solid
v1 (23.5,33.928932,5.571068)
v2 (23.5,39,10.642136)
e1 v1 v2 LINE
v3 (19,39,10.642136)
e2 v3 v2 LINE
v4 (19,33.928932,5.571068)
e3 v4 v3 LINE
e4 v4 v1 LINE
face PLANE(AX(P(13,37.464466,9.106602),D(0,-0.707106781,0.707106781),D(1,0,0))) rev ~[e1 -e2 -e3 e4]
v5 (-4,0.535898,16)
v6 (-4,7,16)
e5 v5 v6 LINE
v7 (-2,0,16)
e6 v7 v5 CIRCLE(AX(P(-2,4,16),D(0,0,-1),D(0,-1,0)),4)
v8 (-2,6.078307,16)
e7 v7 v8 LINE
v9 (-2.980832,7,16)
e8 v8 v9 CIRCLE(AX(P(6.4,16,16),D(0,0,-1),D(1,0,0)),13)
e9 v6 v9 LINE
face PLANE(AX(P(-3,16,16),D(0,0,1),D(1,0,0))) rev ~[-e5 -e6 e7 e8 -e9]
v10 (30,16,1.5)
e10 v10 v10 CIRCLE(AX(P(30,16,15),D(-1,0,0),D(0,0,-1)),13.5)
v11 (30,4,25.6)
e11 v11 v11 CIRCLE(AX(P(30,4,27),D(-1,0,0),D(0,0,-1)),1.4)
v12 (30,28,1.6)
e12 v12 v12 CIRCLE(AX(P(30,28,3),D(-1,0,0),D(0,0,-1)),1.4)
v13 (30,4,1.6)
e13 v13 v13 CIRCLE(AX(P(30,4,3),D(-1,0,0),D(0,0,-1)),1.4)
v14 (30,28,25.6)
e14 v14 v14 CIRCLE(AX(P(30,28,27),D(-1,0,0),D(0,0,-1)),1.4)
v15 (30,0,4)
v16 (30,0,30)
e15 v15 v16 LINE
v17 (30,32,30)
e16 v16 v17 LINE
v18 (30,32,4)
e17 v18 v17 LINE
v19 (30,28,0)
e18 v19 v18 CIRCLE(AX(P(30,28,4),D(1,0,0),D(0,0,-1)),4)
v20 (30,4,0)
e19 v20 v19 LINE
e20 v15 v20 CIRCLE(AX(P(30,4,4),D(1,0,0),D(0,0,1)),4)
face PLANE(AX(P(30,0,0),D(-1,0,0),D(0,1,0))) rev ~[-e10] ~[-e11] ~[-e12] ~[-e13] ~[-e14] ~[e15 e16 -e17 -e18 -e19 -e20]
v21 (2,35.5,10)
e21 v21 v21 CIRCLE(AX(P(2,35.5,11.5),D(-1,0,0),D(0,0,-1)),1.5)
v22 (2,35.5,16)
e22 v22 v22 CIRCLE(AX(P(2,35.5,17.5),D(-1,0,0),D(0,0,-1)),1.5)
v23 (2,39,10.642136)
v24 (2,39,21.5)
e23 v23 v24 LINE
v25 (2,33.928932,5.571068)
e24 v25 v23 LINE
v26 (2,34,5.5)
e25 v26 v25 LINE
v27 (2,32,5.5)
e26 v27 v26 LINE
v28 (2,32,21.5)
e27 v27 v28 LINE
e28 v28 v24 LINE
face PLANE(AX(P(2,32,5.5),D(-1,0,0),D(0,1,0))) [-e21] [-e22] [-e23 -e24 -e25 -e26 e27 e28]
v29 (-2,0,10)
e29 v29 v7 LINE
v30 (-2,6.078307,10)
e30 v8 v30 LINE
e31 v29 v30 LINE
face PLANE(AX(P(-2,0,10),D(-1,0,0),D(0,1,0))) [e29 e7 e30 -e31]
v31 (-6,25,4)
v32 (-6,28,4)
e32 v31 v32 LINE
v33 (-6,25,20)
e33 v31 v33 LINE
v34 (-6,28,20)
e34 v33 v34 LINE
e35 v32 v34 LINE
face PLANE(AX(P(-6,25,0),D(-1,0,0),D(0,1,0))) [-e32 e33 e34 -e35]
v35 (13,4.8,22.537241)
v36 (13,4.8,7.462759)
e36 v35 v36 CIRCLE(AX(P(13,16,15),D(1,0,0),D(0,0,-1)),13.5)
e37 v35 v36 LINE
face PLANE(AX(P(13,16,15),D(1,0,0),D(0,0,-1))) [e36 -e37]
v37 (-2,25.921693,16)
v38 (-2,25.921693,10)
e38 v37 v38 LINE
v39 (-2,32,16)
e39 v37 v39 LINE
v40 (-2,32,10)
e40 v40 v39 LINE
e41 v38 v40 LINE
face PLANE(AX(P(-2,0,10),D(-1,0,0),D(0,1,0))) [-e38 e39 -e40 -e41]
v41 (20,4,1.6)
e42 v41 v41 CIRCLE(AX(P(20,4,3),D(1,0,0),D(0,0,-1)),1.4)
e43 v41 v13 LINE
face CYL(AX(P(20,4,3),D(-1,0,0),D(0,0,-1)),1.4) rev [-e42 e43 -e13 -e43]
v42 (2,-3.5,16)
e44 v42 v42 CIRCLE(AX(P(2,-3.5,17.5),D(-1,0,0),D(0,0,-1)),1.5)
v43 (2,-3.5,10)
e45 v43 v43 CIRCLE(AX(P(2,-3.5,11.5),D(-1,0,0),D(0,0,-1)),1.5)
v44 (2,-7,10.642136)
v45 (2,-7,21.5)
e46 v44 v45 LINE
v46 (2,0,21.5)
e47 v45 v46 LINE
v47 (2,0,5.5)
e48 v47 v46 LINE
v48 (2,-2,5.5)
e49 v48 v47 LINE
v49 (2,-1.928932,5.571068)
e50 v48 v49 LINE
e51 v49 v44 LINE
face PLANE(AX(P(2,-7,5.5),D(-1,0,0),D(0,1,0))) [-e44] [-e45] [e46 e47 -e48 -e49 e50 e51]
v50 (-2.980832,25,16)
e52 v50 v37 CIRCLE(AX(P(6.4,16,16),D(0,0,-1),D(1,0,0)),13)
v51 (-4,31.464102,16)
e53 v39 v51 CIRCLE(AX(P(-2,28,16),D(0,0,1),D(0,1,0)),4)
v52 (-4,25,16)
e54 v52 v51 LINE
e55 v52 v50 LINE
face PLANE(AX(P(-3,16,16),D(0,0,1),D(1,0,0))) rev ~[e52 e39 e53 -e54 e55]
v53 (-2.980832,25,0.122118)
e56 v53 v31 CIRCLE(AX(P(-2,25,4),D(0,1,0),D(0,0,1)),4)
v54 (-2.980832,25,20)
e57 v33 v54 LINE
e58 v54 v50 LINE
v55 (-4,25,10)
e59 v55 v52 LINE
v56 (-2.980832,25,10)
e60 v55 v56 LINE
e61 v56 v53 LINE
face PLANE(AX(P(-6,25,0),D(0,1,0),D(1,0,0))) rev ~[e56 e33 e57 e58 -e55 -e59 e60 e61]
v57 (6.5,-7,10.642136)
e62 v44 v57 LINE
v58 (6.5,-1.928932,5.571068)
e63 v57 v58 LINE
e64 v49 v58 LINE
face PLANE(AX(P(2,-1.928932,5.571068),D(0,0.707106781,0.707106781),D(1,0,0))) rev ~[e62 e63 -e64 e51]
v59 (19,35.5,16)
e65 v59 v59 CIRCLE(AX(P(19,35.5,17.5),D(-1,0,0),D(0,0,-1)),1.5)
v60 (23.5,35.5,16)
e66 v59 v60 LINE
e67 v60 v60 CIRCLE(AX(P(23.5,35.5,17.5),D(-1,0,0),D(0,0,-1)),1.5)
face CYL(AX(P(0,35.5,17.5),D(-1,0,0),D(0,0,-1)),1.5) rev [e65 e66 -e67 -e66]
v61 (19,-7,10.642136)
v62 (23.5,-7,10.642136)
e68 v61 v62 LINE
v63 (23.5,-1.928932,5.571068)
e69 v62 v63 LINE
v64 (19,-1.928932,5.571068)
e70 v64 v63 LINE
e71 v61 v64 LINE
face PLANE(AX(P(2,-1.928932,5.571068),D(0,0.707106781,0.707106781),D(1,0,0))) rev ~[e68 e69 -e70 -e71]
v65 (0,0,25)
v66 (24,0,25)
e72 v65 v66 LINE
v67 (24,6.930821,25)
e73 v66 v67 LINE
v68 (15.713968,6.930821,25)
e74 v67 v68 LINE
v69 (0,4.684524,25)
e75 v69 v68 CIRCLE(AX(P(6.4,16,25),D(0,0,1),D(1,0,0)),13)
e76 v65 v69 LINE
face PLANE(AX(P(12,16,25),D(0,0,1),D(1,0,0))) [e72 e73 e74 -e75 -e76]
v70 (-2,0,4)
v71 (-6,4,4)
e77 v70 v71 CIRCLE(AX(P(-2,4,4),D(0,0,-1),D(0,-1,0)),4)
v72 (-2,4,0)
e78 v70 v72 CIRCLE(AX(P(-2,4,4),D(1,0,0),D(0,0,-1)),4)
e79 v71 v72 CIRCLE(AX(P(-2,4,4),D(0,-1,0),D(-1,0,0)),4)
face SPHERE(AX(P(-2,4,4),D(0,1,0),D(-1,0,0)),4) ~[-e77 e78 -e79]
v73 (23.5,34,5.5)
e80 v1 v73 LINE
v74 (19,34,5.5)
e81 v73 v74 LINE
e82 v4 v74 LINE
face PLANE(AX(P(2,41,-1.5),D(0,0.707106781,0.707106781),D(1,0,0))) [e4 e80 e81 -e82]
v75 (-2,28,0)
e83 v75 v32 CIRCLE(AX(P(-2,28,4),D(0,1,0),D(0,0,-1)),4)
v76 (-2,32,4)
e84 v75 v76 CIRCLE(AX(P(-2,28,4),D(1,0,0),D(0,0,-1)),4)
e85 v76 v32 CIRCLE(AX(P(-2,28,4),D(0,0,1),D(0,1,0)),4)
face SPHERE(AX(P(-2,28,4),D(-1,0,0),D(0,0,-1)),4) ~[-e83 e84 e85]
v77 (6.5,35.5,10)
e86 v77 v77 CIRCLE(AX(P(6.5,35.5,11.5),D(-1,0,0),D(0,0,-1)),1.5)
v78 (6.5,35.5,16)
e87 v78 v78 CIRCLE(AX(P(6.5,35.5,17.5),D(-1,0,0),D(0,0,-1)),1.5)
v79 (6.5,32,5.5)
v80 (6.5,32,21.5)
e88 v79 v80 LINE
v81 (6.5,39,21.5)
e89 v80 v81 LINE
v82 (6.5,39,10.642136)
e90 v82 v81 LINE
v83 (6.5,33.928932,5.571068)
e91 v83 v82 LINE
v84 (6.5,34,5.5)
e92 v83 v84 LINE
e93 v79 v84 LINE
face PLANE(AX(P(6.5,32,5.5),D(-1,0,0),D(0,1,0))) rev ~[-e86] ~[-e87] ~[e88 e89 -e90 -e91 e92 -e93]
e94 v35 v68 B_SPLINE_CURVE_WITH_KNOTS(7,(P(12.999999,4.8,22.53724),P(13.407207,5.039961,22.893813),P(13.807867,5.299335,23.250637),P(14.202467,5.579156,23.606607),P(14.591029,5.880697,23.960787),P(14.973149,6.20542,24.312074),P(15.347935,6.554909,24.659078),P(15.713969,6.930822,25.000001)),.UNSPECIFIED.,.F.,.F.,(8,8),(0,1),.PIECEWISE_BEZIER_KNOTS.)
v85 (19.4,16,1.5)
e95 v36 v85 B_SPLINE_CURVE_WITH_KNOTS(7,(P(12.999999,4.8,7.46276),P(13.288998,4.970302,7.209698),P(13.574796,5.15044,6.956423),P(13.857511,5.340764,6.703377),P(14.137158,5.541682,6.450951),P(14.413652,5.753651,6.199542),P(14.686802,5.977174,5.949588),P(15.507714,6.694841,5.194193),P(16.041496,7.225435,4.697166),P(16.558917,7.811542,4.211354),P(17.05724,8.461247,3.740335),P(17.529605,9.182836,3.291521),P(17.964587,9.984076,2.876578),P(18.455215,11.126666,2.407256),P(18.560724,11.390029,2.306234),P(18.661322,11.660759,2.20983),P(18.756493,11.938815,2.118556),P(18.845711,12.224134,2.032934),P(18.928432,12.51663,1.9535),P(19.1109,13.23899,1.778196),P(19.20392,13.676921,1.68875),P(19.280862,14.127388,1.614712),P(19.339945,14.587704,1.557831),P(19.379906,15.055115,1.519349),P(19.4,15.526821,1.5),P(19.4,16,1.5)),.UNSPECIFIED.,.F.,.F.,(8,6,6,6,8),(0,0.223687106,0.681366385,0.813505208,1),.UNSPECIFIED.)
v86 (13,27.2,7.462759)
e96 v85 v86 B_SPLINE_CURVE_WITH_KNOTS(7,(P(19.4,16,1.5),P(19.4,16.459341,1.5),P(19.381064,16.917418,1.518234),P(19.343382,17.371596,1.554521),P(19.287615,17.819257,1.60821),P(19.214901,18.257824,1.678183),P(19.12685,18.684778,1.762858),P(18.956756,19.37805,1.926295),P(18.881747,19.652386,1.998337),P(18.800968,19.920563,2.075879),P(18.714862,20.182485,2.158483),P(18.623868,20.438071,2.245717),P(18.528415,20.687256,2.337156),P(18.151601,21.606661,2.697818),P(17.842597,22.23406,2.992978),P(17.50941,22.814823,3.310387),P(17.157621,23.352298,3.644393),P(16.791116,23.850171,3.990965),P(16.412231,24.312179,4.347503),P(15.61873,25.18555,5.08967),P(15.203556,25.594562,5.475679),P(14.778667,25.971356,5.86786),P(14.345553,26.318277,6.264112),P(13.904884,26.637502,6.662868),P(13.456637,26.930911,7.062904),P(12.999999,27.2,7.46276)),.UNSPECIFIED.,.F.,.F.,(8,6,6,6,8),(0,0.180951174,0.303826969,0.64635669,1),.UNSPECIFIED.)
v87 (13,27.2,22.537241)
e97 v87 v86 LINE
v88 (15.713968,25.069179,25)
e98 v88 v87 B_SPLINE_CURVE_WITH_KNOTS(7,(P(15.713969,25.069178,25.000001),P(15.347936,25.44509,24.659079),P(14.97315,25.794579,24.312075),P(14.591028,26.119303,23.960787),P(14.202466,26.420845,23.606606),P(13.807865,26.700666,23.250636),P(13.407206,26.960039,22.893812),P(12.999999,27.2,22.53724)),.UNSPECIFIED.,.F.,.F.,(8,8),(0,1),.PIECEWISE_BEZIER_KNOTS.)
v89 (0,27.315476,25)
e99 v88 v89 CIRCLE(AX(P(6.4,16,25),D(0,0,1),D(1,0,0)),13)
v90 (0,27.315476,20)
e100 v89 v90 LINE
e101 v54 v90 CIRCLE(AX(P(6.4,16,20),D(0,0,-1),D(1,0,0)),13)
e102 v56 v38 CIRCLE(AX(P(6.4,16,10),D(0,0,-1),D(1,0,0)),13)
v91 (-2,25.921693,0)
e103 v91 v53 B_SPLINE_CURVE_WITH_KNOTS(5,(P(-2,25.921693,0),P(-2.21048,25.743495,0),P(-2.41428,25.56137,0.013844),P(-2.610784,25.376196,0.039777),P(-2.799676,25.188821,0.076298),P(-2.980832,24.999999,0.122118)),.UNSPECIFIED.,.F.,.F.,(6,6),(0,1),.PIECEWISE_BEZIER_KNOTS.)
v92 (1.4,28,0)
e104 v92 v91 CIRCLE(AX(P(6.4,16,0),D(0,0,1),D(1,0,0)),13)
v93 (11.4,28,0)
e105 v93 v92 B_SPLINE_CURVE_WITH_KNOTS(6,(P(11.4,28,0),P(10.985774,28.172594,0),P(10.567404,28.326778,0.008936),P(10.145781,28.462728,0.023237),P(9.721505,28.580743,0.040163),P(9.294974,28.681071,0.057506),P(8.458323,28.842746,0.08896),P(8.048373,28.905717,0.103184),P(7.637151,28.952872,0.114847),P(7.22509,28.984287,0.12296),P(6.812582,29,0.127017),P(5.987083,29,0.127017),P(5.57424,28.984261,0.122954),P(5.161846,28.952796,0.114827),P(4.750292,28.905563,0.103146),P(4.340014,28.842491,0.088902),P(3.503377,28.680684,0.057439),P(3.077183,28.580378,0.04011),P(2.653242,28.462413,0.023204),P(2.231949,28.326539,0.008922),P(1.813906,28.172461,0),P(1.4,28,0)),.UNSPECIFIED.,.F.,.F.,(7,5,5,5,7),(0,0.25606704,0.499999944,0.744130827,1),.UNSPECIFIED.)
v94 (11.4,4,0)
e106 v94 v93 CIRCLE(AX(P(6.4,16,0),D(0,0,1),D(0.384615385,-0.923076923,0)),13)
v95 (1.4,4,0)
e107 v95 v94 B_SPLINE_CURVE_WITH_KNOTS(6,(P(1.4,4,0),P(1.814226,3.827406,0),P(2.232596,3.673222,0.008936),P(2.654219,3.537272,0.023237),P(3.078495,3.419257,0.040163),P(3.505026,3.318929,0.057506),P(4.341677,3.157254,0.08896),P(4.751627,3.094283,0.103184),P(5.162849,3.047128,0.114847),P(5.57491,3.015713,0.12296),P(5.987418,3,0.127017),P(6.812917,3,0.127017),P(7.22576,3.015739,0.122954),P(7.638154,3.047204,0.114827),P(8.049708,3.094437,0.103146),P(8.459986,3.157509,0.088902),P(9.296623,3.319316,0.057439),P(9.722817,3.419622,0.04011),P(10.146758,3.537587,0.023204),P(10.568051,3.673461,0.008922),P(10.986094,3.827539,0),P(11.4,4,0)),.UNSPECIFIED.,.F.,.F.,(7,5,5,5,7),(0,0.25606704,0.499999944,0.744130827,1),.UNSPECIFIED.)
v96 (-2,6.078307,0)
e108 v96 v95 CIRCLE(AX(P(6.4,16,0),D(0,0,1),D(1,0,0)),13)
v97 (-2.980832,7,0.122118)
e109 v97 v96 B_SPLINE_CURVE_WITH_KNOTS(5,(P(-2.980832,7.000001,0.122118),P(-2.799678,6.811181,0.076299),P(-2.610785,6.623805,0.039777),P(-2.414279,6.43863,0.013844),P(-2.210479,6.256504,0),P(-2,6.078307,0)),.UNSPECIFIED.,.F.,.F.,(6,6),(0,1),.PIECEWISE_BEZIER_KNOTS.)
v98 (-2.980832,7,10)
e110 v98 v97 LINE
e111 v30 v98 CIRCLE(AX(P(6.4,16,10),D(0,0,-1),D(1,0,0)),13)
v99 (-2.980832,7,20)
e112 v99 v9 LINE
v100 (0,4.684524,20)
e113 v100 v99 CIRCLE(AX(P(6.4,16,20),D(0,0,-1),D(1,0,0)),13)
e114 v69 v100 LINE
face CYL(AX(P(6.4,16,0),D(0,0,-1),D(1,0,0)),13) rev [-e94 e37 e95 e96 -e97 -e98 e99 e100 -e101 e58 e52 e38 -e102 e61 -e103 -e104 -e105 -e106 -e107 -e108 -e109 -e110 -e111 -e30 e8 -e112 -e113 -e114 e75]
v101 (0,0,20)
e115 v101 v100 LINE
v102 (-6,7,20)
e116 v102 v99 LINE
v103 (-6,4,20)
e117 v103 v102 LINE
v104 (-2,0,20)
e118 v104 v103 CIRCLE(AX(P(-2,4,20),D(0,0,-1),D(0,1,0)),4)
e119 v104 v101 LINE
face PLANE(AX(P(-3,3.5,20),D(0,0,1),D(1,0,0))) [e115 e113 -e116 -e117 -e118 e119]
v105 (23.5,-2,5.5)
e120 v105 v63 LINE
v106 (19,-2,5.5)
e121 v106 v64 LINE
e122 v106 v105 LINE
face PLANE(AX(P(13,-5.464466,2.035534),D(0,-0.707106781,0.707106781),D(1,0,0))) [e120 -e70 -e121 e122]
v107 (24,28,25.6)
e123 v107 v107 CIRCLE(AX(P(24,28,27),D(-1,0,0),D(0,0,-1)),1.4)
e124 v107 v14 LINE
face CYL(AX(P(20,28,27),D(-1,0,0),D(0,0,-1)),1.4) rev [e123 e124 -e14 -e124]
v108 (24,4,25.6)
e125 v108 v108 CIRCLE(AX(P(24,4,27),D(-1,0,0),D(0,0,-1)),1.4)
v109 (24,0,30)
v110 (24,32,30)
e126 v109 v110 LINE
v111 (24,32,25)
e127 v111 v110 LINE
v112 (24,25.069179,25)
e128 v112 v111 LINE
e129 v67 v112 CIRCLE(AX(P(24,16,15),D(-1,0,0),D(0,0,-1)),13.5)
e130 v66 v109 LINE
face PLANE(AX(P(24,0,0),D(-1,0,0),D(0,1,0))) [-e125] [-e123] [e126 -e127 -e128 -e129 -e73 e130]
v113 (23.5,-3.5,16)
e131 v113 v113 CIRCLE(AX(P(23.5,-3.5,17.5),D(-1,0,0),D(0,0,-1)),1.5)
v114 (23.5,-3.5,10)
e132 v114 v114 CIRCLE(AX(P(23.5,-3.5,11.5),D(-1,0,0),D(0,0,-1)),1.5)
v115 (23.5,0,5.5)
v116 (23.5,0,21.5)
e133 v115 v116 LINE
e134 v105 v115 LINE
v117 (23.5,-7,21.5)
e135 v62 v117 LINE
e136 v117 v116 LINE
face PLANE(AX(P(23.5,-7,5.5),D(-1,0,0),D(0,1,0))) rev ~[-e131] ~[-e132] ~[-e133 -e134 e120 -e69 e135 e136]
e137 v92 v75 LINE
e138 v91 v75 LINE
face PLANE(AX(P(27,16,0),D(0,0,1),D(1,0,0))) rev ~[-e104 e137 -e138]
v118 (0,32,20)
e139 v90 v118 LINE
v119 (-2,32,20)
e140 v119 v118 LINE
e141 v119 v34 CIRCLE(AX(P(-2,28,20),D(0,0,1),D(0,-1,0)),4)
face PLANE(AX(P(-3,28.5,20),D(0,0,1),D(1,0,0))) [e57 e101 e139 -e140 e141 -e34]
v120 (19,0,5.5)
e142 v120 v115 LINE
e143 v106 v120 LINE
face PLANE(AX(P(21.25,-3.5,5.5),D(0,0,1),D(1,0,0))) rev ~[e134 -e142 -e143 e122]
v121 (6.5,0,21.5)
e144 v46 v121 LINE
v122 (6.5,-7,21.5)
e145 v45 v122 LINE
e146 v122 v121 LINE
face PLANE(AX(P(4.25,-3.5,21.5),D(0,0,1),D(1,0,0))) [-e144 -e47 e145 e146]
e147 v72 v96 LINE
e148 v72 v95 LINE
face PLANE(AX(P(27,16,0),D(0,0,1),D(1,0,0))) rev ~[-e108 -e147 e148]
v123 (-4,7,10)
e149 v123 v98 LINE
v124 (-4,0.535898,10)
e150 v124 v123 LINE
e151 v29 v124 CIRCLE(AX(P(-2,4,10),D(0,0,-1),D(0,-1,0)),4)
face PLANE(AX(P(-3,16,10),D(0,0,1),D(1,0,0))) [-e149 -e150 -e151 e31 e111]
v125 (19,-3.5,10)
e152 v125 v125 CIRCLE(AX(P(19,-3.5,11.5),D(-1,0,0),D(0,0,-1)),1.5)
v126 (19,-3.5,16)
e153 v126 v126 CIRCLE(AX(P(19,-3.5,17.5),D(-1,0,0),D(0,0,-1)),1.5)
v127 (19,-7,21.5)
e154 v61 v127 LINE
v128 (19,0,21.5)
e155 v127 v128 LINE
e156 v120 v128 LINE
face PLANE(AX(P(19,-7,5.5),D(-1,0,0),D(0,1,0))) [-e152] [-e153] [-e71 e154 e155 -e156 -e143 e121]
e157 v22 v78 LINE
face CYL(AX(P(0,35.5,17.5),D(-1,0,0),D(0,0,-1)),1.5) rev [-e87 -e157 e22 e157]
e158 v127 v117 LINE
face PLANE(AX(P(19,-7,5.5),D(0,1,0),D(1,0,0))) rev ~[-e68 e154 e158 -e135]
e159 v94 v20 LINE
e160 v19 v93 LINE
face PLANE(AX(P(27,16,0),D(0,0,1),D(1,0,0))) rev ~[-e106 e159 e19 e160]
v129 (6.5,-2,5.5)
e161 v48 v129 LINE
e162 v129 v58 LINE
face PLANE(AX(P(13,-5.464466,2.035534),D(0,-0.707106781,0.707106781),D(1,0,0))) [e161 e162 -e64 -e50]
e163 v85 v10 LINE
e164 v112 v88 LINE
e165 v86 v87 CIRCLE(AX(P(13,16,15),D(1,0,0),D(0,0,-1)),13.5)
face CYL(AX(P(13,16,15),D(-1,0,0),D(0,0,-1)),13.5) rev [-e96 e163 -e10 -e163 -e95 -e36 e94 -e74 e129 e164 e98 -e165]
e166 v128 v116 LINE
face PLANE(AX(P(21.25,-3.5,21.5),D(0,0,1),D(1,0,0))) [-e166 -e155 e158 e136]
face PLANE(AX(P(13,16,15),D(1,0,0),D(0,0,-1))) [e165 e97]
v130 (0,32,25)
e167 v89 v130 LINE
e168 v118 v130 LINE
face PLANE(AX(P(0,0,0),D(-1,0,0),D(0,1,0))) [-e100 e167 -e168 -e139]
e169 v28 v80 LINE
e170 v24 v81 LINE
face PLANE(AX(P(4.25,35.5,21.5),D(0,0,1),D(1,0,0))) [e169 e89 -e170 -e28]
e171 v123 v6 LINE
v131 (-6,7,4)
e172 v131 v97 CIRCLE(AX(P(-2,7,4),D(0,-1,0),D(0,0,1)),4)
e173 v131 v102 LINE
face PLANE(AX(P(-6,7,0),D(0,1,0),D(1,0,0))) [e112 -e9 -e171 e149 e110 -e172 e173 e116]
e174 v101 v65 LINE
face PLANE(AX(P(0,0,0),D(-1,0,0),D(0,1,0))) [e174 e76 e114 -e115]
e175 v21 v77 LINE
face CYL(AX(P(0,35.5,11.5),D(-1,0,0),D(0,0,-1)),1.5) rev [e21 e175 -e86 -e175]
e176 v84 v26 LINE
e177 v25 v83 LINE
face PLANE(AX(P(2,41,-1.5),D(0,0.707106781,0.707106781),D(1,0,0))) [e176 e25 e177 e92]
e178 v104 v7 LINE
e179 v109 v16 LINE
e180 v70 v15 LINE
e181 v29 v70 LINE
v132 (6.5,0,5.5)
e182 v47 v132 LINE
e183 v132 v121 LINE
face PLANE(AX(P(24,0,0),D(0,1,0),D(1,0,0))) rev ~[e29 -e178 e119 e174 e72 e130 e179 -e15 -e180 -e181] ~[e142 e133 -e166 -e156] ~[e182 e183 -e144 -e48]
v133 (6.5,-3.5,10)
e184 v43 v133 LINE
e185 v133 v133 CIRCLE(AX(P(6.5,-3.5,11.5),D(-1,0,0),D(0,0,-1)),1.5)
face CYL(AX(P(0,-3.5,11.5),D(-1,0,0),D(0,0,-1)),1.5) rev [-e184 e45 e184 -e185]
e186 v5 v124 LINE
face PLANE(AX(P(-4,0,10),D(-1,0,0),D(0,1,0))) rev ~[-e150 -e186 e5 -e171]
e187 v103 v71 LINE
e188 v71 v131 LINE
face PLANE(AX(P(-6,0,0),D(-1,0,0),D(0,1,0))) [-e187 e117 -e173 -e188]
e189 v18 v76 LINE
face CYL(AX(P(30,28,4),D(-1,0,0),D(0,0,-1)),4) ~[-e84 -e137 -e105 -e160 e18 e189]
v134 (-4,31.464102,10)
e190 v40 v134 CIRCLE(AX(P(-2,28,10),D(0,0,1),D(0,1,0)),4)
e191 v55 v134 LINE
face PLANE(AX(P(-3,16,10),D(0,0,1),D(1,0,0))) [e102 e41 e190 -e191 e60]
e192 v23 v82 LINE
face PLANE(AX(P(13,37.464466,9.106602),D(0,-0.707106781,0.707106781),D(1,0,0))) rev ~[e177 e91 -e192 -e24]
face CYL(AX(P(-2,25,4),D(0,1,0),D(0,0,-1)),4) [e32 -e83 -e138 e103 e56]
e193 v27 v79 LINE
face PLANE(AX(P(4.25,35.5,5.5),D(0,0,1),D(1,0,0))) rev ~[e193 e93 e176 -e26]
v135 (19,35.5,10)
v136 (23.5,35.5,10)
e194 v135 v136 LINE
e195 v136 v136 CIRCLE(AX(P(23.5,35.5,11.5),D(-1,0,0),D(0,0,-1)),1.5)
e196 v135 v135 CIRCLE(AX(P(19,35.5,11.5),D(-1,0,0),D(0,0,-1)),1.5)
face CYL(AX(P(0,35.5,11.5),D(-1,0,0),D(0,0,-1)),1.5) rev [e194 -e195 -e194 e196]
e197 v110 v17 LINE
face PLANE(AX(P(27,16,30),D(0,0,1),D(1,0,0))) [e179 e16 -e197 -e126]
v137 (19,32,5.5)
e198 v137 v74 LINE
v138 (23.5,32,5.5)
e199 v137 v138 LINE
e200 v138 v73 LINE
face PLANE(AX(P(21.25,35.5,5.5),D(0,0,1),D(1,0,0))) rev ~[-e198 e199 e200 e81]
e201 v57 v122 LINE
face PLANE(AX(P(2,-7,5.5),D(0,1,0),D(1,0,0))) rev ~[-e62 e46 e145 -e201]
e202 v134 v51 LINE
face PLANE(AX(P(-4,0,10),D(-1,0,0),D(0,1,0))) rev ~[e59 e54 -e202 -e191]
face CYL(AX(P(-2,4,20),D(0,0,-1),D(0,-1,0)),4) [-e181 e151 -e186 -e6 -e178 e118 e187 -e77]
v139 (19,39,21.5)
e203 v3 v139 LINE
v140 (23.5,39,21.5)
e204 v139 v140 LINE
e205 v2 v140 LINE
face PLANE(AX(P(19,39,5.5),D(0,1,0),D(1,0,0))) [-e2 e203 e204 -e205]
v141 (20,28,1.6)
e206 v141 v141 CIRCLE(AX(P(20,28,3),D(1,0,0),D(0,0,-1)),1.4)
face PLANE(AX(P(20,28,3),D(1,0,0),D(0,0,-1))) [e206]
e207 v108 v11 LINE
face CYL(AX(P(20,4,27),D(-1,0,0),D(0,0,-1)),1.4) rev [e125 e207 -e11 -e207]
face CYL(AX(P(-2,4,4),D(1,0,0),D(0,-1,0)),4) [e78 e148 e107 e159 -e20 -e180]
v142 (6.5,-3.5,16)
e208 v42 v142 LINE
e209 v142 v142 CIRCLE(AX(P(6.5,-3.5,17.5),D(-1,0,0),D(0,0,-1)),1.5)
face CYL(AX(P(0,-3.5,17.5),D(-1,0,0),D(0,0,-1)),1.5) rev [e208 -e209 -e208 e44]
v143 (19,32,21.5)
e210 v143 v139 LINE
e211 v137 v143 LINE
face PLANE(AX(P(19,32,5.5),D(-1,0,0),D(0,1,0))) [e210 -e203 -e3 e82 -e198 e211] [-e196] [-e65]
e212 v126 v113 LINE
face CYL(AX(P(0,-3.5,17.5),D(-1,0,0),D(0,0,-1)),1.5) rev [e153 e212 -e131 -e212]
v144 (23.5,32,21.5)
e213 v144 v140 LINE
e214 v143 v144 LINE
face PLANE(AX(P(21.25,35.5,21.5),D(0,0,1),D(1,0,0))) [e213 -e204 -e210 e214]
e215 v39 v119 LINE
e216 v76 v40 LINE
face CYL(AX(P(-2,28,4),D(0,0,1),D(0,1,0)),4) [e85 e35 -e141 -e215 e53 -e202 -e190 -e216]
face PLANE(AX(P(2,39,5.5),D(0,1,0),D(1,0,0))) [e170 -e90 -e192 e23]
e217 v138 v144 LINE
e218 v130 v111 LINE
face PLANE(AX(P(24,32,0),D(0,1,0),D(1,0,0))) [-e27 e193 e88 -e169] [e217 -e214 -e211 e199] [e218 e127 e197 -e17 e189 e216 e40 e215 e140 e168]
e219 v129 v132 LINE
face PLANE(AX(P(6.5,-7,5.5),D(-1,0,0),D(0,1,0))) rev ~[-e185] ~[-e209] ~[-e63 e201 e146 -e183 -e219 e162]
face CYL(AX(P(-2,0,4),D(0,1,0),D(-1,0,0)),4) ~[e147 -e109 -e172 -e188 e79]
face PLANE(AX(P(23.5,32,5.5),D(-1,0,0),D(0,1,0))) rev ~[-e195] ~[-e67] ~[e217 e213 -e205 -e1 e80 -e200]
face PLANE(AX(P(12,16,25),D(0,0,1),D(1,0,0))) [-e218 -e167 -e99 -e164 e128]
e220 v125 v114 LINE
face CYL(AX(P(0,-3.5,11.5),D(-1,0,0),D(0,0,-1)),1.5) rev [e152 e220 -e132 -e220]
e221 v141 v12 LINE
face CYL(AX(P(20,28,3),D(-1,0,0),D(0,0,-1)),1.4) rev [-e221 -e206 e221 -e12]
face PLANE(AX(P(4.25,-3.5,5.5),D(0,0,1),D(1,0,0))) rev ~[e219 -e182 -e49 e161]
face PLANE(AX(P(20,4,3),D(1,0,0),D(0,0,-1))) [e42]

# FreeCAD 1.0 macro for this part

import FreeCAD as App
import Part
import Sketcher
from FreeCAD import Vector


def edges_at(feature, points):
    """Names of the edges that pass closest to the given points."""
    edges = feature.Shape.Edges
    near = lambda p: min(range(len(edges)), key=lambda i: edges[i].distToShape(Part.Vertex(*p))[0])
    return sorted({f"Edge{near(p) + 1}" for p in points})


def add_polygon(sketch, points):
    """Adds a closed chain of lines whose ends are joined by coincident constraints."""
    first, n = sketch.GeometryCount, len(points)
    for a, b in zip(points, points[1:] + points[:1]):
        sketch.addGeometry(Part.LineSegment(App.Vector(*a, 0), App.Vector(*b, 0)), False)
    for i in range(n):
        sketch.addConstraint(Sketcher.Constraint("Coincident", first + i, 2, first + (i + 1) % n, 1))

doc = App.newDocument("Part")
body = doc.addObject("PartDesign::Body", "Body")

# Sketch on XY plane
sketch1 = body.newObject("Sketcher::SketchObject", "Sketch")
sketch1.AttachmentSupport = (doc.getObject("XY_Plane"), [""])
sketch1.MapMode = "FlatFace"
add_polygon(sketch1, [(0, 10), (0, 0), (22, 0), (22, 10)])  # lines 0-3
sketch1.addConstraint([
    Sketcher.Constraint("Vertical", 0),
    Sketcher.Constraint("Horizontal", 1),
    Sketcher.Constraint("Vertical", 2),
    Sketcher.Constraint("Horizontal", 3),
    Sketcher.Constraint("Coincident", 0, 2, -1, 1),
    Sketcher.Constraint("DistanceX", 1, 1, 1, 2, 22.0),
    Sketcher.Constraint("DistanceY", 0, 2, 0, 1, 10.0),
])
pad1 = body.newObject("PartDesign::Pad", "Pad")
pad1.Profile = sketch1
pad1.Length = 10
body2 = doc.addObject("PartDesign::Body", "Body001")
doc.recompute()

body.Placement = App.Placement(Vector(0, 0, 0), App.Rotation(Vector(1, 0, 0), 45))
boolean = body2.newObject("PartDesign::Boolean", "Boolean")
boolean.Type = "Fuse"
boolean.addObjects([body])
body3 = doc.addObject("PartDesign::Body", "Body002")
doc.recompute()

body2.Placement = App.Placement(Vector(2, 41, -7), App.Rotation(Vector(0, 0, 1), 0))
boolean2 = body3.newObject("PartDesign::Boolean", "Boolean001")
boolean2.Type = "Fuse"
boolean2.addObjects([body2])
body4 = doc.addObject("PartDesign::Body", "Body003")

# Sketch on XY plane
sketch2 = body4.newObject("Sketcher::SketchObject", "Sketch001")
sketch2.AttachmentSupport = (doc.getObject("XY_Plane003"), [""])
sketch2.MapMode = "FlatFace"
add_polygon(sketch2, [(0, 10), (0, 0), (22, 0), (22, 10)])  # lines 0-3
sketch2.addConstraint([
    Sketcher.Constraint("Vertical", 0),
    Sketcher.Constraint("Horizontal", 1),
    Sketcher.Constraint("Vertical", 2),
    Sketcher.Constraint("Horizontal", 3),
    Sketcher.Constraint("Coincident", 0, 2, -1, 1),
    Sketcher.Constraint("DistanceX", 1, 1, 1, 2, 22.0),
    Sketcher.Constraint("DistanceY", 0, 2, 0, 1, 10.0),
])
pad2 = body4.newObject("PartDesign::Pad", "Pad001")
pad2.Profile = sketch2
pad2.Length = 10
body5 = doc.addObject("PartDesign::Body", "Body004")
doc.recompute()

body4.Placement = App.Placement(Vector(0, 0, 0), App.Rotation(Vector(1, 0, 0), 45))
boolean3 = body5.newObject("PartDesign::Boolean", "Boolean002")
boolean3.Type = "Fuse"
boolean3.addObjects([body4])
body6 = doc.addObject("PartDesign::Body", "Body005")
body6.AllowCompound = True
doc.recompute()

body5.Placement = App.Placement(Vector(2, -9, -7), App.Rotation(Vector(0, 0, 1), 0))
boolean4 = body6.newObject("PartDesign::Boolean", "Boolean003")
boolean4.Type = "Fuse"
boolean4.addObjects([body5])
doc.recompute()

boolean5 = body6.newObject("PartDesign::Boolean", "Boolean004")
boolean5.Type = "Fuse"
boolean5.addObjects([body3])
body7 = doc.addObject("PartDesign::Body", "Body006")
body7.AllowCompound = True
doc.recompute()

body6.Placement = App.Placement(Vector(0, 0, 5.5), App.Rotation(Vector(0, 0, 1), 0))
boolean6 = body7.newObject("PartDesign::Boolean", "Boolean005")
boolean6.Type = "Fuse"
boolean6.addObjects([body6])
body8 = doc.addObject("PartDesign::Body", "Body007")

# Sketch on XY plane
sketch3 = body8.newObject("Sketcher::SketchObject", "Sketch002")
sketch3.AttachmentSupport = (doc.getObject("XY_Plane007"), [""])
sketch3.MapMode = "FlatFace"
sketch3.addGeometry(Part.Circle(Vector(0, 0, 0), Vector(0, 0, 1), 1.5), False)
sketch3.addConstraint([
    Sketcher.Constraint("Coincident", 0, 3, -1, 1),
    Sketcher.Constraint("Diameter", 0, 3.0),
])
pad3 = body8.newObject("PartDesign::Pad", "Pad002")
pad3.Profile = sketch3
pad3.Length = 40
body9 = doc.addObject("PartDesign::Body", "Body008")
doc.recompute()

body8.Placement = App.Placement(Vector(0, 0, 0), App.Rotation(Vector(0, 1, 0), 90))
boolean7 = body9.newObject("PartDesign::Boolean", "Boolean006")
boolean7.Type = "Fuse"
boolean7.addObjects([body8])
body10 = doc.addObject("PartDesign::Body", "Body009")
doc.recompute()

body9.Placement = App.Placement(Vector(0, -3.5, 6), App.Rotation(Vector(0, 0, 1), 0))
boolean8 = body10.newObject("PartDesign::Boolean", "Boolean007")
boolean8.Type = "Fuse"
boolean8.addObjects([body9])
body11 = doc.addObject("PartDesign::Body", "Body010")

# Sketch on XY plane
sketch4 = body11.newObject("Sketcher::SketchObject", "Sketch003")
sketch4.AttachmentSupport = (doc.getObject("XY_Plane010"), [""])
sketch4.MapMode = "FlatFace"
sketch4.addGeometry(Part.Circle(Vector(0, 0, 0), Vector(0, 0, 1), 1.5), False)
sketch4.addConstraint([
    Sketcher.Constraint("Coincident", 0, 3, -1, 1),
    Sketcher.Constraint("Diameter", 0, 3.0),
])
pad4 = body11.newObject("PartDesign::Pad", "Pad003")
pad4.Profile = sketch4
pad4.Length = 40
body12 = doc.addObject("PartDesign::Body", "Body011")
doc.recompute()

body11.Placement = App.Placement(Vector(0, 0, 0), App.Rotation(Vector(0, 1, 0), 90))
boolean9 = body12.newObject("PartDesign::Boolean", "Boolean008")
boolean9.Type = "Fuse"
boolean9.addObjects([body11])
body13 = doc.addObject("PartDesign::Body", "Body012")
doc.recompute()

body12.Placement = App.Placement(Vector(0, 35.5, 12), App.Rotation(Vector(0, 0, 1), 0))
boolean10 = body13.newObject("PartDesign::Boolean", "Boolean009")
boolean10.Type = "Fuse"
boolean10.addObjects([body12])
body14 = doc.addObject("PartDesign::Body", "Body013")

# Sketch on XY plane
sketch5 = body14.newObject("Sketcher::SketchObject", "Sketch004")
sketch5.AttachmentSupport = (doc.getObject("XY_Plane013"), [""])
sketch5.MapMode = "FlatFace"
sketch5.addGeometry(Part.Circle(Vector(0, 0, 0), Vector(0, 0, 1), 1.5), False)
sketch5.addConstraint([
    Sketcher.Constraint("Coincident", 0, 3, -1, 1),
    Sketcher.Constraint("Diameter", 0, 3.0),
])
pad5 = body14.newObject("PartDesign::Pad", "Pad004")
pad5.Profile = sketch5
pad5.Length = 40
body15 = doc.addObject("PartDesign::Body", "Body014")
doc.recompute()

body14.Placement = App.Placement(Vector(0, 0, 0), App.Rotation(Vector(0, 1, 0), 90))
boolean11 = body15.newObject("PartDesign::Boolean", "Boolean010")
boolean11.Type = "Fuse"
boolean11.addObjects([body14])
body16 = doc.addObject("PartDesign::Body", "Body015")
doc.recompute()

body15.Placement = App.Placement(Vector(0, 35.5, 6), App.Rotation(Vector(0, 0, 1), 0))
boolean12 = body16.newObject("PartDesign::Boolean", "Boolean011")
boolean12.Type = "Fuse"
boolean12.addObjects([body15])
body17 = doc.addObject("PartDesign::Body", "Body016")

# Sketch on XY plane
sketch6 = body17.newObject("Sketcher::SketchObject", "Sketch005")
sketch6.AttachmentSupport = (doc.getObject("XY_Plane016"), [""])
sketch6.MapMode = "FlatFace"
sketch6.addGeometry(Part.Circle(Vector(0, 0, 0), Vector(0, 0, 1), 1.5), False)
sketch6.addConstraint([
    Sketcher.Constraint("Coincident", 0, 3, -1, 1),
    Sketcher.Constraint("Diameter", 0, 3.0),
])
pad6 = body17.newObject("PartDesign::Pad", "Pad005")
pad6.Profile = sketch6
pad6.Length = 40
body18 = doc.addObject("PartDesign::Body", "Body017")
doc.recompute()

body17.Placement = App.Placement(Vector(0, 0, 0), App.Rotation(Vector(0, 1, 0), 90))
boolean13 = body18.newObject("PartDesign::Boolean", "Boolean012")
boolean13.Type = "Fuse"
boolean13.addObjects([body17])
body19 = doc.addObject("PartDesign::Body", "Body018")
body19.AllowCompound = True
doc.recompute()

body18.Placement = App.Placement(Vector(0, -3.5, 12), App.Rotation(Vector(0, 0, 1), 0))
boolean14 = body19.newObject("PartDesign::Boolean", "Boolean013")
boolean14.Type = "Fuse"
boolean14.addObjects([body18])
doc.recompute()

boolean15 = body19.newObject("PartDesign::Boolean", "Boolean014")
boolean15.Type = "Fuse"
boolean15.addObjects([body10])
doc.recompute()

boolean16 = body19.newObject("PartDesign::Boolean", "Boolean015")
boolean16.Type = "Fuse"
boolean16.addObjects([body13])
doc.recompute()

boolean17 = body19.newObject("PartDesign::Boolean", "Boolean016")
boolean17.Type = "Fuse"
boolean17.addObjects([body16])
body20 = doc.addObject("PartDesign::Body", "Body019")
body20.AllowCompound = True
doc.recompute()

body19.Placement = App.Placement(Vector(0, 0, 5.5), App.Rotation(Vector(0, 0, 1), 0))
boolean18 = body20.newObject("PartDesign::Boolean", "Boolean017")
boolean18.Type = "Fuse"
boolean18.addObjects([body19])
body21 = doc.addObject("PartDesign::Body", "Body020")

# Sketch on XY plane
sketch7 = body21.newObject("Sketcher::SketchObject", "Sketch006")
sketch7.AttachmentSupport = (doc.getObject("XY_Plane020"), [""])
sketch7.MapMode = "FlatFace"
sketch7.AttachmentOffset = App.Placement(Vector(0, 0, 10), App.Rotation())
add_polygon(sketch7, [(-4, 32), (-4, 0), (-2, 0), (-2, 32)])  # lines 0-3
sketch7.addConstraint([
    Sketcher.Constraint("Vertical", 0),
    Sketcher.Constraint("Horizontal", 1),
    Sketcher.Constraint("Vertical", 2),
    Sketcher.Constraint("Horizontal", 3),
    Sketcher.Constraint("PointOnObject", 0, 2, -1),
    Sketcher.Constraint("DistanceX", 1, 1, 1, 2, 2.0),
    Sketcher.Constraint("DistanceY", 0, 2, 0, 1, 32.0),
    Sketcher.Constraint("DistanceX", 0, 2, -1, 1, 4.0),
])
pad7 = body21.newObject("PartDesign::Pad", "Pad006")
pad7.Profile = sketch7
pad7.Length = 6
body22 = doc.addObject("PartDesign::Body", "Body021")

# Sketch on XY plane
sketch8 = body22.newObject("Sketcher::SketchObject", "Sketch007")
sketch8.AttachmentSupport = (doc.getObject("XY_Plane021"), [""])
sketch8.MapMode = "FlatFace"
sketch8.addGeometry(Part.Circle(Vector(6, 16, 0), Vector(0, 0, 1), 13), False)
sketch8.addConstraint([
    Sketcher.Constraint("Diameter", 0, 26.0),
    Sketcher.Constraint("DistanceY", -1, 1, 0, 3, 16.0),
    Sketcher.Constraint("DistanceX", -1, 1, 0, 3, 6.4),
])
pad8 = body22.newObject("PartDesign::Pad", "Pad007")
pad8.Profile = sketch8
pad8.Length = 25
body23 = doc.addObject("PartDesign::Body", "Body022")

# Sketch on XY plane
sketch9 = body23.newObject("Sketcher::SketchObject", "Sketch008")
sketch9.AttachmentSupport = (doc.getObject("XY_Plane022"), [""])
sketch9.MapMode = "FlatFace"
sketch9.addGeometry(Part.Circle(Vector(0, 0, 0), Vector(0, 0, 1), 14), False)
sketch9.addConstraint([
    Sketcher.Constraint("Coincident", 0, 3, -1, 1),
    Sketcher.Constraint("Diameter", 0, 27.0),
])
pad9 = body23.newObject("PartDesign::Pad", "Pad008")
pad9.Profile = sketch9
pad9.Length = 18
body24 = doc.addObject("PartDesign::Body", "Body023")
doc.recompute()

body23.Placement = App.Placement(Vector(0, 0, 0), App.Rotation(Vector(0, 1, 0), 90))
boolean19 = body24.newObject("PartDesign::Boolean", "Boolean018")
boolean19.Type = "Fuse"
boolean19.addObjects([body23])
body25 = doc.addObject("PartDesign::Body", "Body024")
doc.recompute()

body24.Placement = App.Placement(Vector(13, 16, 15), App.Rotation(Vector(0, 0, 1), 0))
boolean20 = body25.newObject("PartDesign::Boolean", "Boolean019")
boolean20.Type = "Fuse"
boolean20.addObjects([body24])
body26 = doc.addObject("PartDesign::Body", "Body025")

# Sketch on XY plane
sketch10 = body26.newObject("Sketcher::SketchObject", "Sketch009")
sketch10.AttachmentSupport = (doc.getObject("XY_Plane025"), [""])
sketch10.MapMode = "FlatFace"
sketch10.addGeometry(Part.Circle(Vector(0, 0, 0), Vector(0, 0, 1), 1.4), False)
sketch10.addConstraint([
    Sketcher.Constraint("Coincident", 0, 3, -1, 1),
    Sketcher.Constraint("Diameter", 0, 2.8),
])
pad10 = body26.newObject("PartDesign::Pad", "Pad009")
pad10.Profile = sketch10
pad10.Length = 20
body27 = doc.addObject("PartDesign::Body", "Body026")
doc.recompute()

body26.Placement = App.Placement(Vector(0, 0, 0), App.Rotation(Vector(0, 1, 0), 90))
boolean21 = body27.newObject("PartDesign::Boolean", "Boolean020")
boolean21.Type = "Fuse"
boolean21.addObjects([body26])
body28 = doc.addObject("PartDesign::Body", "Body027")
doc.recompute()

body27.Placement = App.Placement(Vector(20, 4, 27), App.Rotation(Vector(0, 0, 1), 0))
boolean22 = body28.newObject("PartDesign::Boolean", "Boolean021")
boolean22.Type = "Fuse"
boolean22.addObjects([body27])
body29 = doc.addObject("PartDesign::Body", "Body028")

# Sketch on XY plane
sketch11 = body29.newObject("Sketcher::SketchObject", "Sketch010")
sketch11.AttachmentSupport = (doc.getObject("XY_Plane028"), [""])
sketch11.MapMode = "FlatFace"
sketch11.addGeometry(Part.Circle(Vector(0, 0, 0), Vector(0, 0, 1), 1.4), False)
sketch11.addConstraint([
    Sketcher.Constraint("Coincident", 0, 3, -1, 1),
    Sketcher.Constraint("Diameter", 0, 2.8),
])
pad11 = body29.newObject("PartDesign::Pad", "Pad010")
pad11.Profile = sketch11
pad11.Length = 20
body30 = doc.addObject("PartDesign::Body", "Body029")
doc.recompute()

body29.Placement = App.Placement(Vector(0, 0, 0), App.Rotation(Vector(0, 1, 0), 90))
boolean23 = body30.newObject("PartDesign::Boolean", "Boolean022")
boolean23.Type = "Fuse"
boolean23.addObjects([body29])
body31 = doc.addObject("PartDesign::Body", "Body030")
doc.recompute()

body30.Placement = App.Placement(Vector(20, 28, 3), App.Rotation(Vector(0, 0, 1), 0))
boolean24 = body31.newObject("PartDesign::Boolean", "Boolean023")
boolean24.Type = "Fuse"
boolean24.addObjects([body30])
body32 = doc.addObject("PartDesign::Body", "Body031")

# Sketch on XY plane
sketch12 = body32.newObject("Sketcher::SketchObject", "Sketch011")
sketch12.AttachmentSupport = (doc.getObject("XY_Plane031"), [""])
sketch12.MapMode = "FlatFace"
sketch12.addGeometry(Part.Circle(Vector(0, 0, 0), Vector(0, 0, 1), 1.4), False)
sketch12.addConstraint([
    Sketcher.Constraint("Coincident", 0, 3, -1, 1),
    Sketcher.Constraint("Diameter", 0, 2.8),
])
pad12 = body32.newObject("PartDesign::Pad", "Pad011")
pad12.Profile = sketch12
pad12.Length = 20
body33 = doc.addObject("PartDesign::Body", "Body032")
doc.recompute()

body32.Placement = App.Placement(Vector(0, 0, 0), App.Rotation(Vector(0, 1, 0), 90))
boolean25 = body33.newObject("PartDesign::Boolean", "Boolean024")
boolean25.Type = "Fuse"
boolean25.addObjects([body32])
body34 = doc.addObject("PartDesign::Body", "Body033")
doc.recompute()

body33.Placement = App.Placement(Vector(20, 28, 27), App.Rotation(Vector(0, 0, 1), 0))
boolean26 = body34.newObject("PartDesign::Boolean", "Boolean025")
boolean26.Type = "Fuse"
boolean26.addObjects([body33])
body35 = doc.addObject("PartDesign::Body", "Body034")

# Sketch on XY plane
sketch13 = body35.newObject("Sketcher::SketchObject", "Sketch012")
sketch13.AttachmentSupport = (doc.getObject("XY_Plane034"), [""])
sketch13.MapMode = "FlatFace"
sketch13.addGeometry(Part.Circle(Vector(0, 0, 0), Vector(0, 0, 1), 1.4), False)
sketch13.addConstraint([
    Sketcher.Constraint("Coincident", 0, 3, -1, 1),
    Sketcher.Constraint("Diameter", 0, 2.8),
])
pad13 = body35.newObject("PartDesign::Pad", "Pad012")
pad13.Profile = sketch13
pad13.Length = 20
body36 = doc.addObject("PartDesign::Body", "Body035")
doc.recompute()

body35.Placement = App.Placement(Vector(0, 0, 0), App.Rotation(Vector(0, 1, 0), 90))
boolean27 = body36.newObject("PartDesign::Boolean", "Boolean026")
boolean27.Type = "Fuse"
boolean27.addObjects([body35])
body37 = doc.addObject("PartDesign::Body", "Body036")
body37.AllowCompound = True
doc.recompute()

body36.Placement = App.Placement(Vector(20, 4, 3), App.Rotation(Vector(0, 0, 1), 0))
boolean28 = body37.newObject("PartDesign::Boolean", "Boolean027")
boolean28.Type = "Fuse"
boolean28.addObjects([body36])
doc.recompute()

boolean29 = body37.newObject("PartDesign::Boolean", "Boolean028")
boolean29.Type = "Fuse"
boolean29.addObjects([body28])
doc.recompute()

boolean30 = body37.newObject("PartDesign::Boolean", "Boolean029")
boolean30.Type = "Fuse"
boolean30.addObjects([body31])
doc.recompute()

boolean31 = body37.newObject("PartDesign::Boolean", "Boolean030")
boolean31.Type = "Fuse"
boolean31.addObjects([body34])
doc.recompute()

boolean32 = body37.newObject("PartDesign::Boolean", "Boolean031")
boolean32.Type = "Fuse"
boolean32.addObjects([body7])
doc.recompute()

boolean33 = body37.newObject("PartDesign::Boolean", "Boolean032")
boolean33.Type = "Fuse"
boolean33.addObjects([body20])
doc.recompute()

boolean34 = body37.newObject("PartDesign::Boolean", "Boolean033")
boolean34.Type = "Fuse"
boolean34.addObjects([body21])
doc.recompute()

boolean35 = body37.newObject("PartDesign::Boolean", "Boolean034")
boolean35.Type = "Fuse"
boolean35.addObjects([body22])
doc.recompute()

boolean36 = body37.newObject("PartDesign::Boolean", "Boolean035")
boolean36.Type = "Fuse"
boolean36.addObjects([body25])
body38 = doc.addObject("PartDesign::Body", "Body037")

# Sketch on XY plane
sketch14 = body38.newObject("Sketcher::SketchObject", "Sketch013")
sketch14.AttachmentSupport = (doc.getObject("XY_Plane037"), [""])
sketch14.MapMode = "FlatFace"
add_polygon(sketch14, [(-6, 7), (-6, 0), (0, 0), (0, 7)])  # lines 0-3
sketch14.addConstraint([
    Sketcher.Constraint("Vertical", 0),
    Sketcher.Constraint("Horizontal", 1),
    Sketcher.Constraint("Vertical", 2),
    Sketcher.Constraint("Horizontal", 3),
    Sketcher.Constraint("Coincident", 1, 2, -1, 1),
    Sketcher.Constraint("DistanceX", 1, 1, 1, 2, 6.0),
    Sketcher.Constraint("DistanceY", 0, 2, 0, 1, 7.0),
])
pad14 = body38.newObject("PartDesign::Pad", "Pad013")
pad14.Profile = sketch14
pad14.Length = 20
body39 = doc.addObject("PartDesign::Body", "Body038")

# Sketch on XY plane
sketch15 = body39.newObject("Sketcher::SketchObject", "Sketch014")
sketch15.AttachmentSupport = (doc.getObject("XY_Plane038"), [""])
sketch15.MapMode = "FlatFace"
add_polygon(sketch15, [(19, 0), (19, -7), (23.5, -7), (23.5, 0)])  # lines 0-3
sketch15.addConstraint([
    Sketcher.Constraint("Vertical", 0),
    Sketcher.Constraint("Horizontal", 1),
    Sketcher.Constraint("Vertical", 2),
    Sketcher.Constraint("Horizontal", 3),
    Sketcher.Constraint("PointOnObject", 2, 2, -1),
    Sketcher.Constraint("DistanceY", 0, 2, 0, 1, 7.0),
    Sketcher.Constraint("DistanceX", 1, 1, 1, 2, 4.5),
    Sketcher.Constraint("DistanceX", -1, 1, 0, 2, 19.0),
])
pad15 = body39.newObject("PartDesign::Pad", "Pad014")
pad15.Profile = sketch15
pad15.Length = 16
body40 = doc.addObject("PartDesign::Body", "Body039")

# Sketch on XY plane
sketch16 = body40.newObject("Sketcher::SketchObject", "Sketch015")
sketch16.AttachmentSupport = (doc.getObject("XY_Plane039"), [""])
sketch16.MapMode = "FlatFace"
add_polygon(sketch16, [(2, 39), (2, 32), (6.5, 32), (6.5, 39)])  # lines 0-3
sketch16.addConstraint([
    Sketcher.Constraint("Vertical", 0),
    Sketcher.Constraint("Horizontal", 1),
    Sketcher.Constraint("Vertical", 2),
    Sketcher.Constraint("Horizontal", 3),
    Sketcher.Constraint("DistanceY", 0, 2, 0, 1, 7.0),
    Sketcher.Constraint("DistanceX", 1, 1, 1, 2, 4.5),
    Sketcher.Constraint("DistanceX", -1, 1, 0, 2, 2.0),
    Sketcher.Constraint("DistanceY", -1, 1, 0, 2, 32.0),
])
pad16 = body40.newObject("PartDesign::Pad", "Pad015")
pad16.Profile = sketch16
pad16.Length = 16
body41 = doc.addObject("PartDesign::Body", "Body040")

# Sketch on XY plane
sketch17 = body41.newObject("Sketcher::SketchObject", "Sketch016")
sketch17.AttachmentSupport = (doc.getObject("XY_Plane040"), [""])
sketch17.MapMode = "FlatFace"
add_polygon(sketch17, [(19, 39), (19, 32), (23.5, 32), (23.5, 39)])  # lines 0-3
sketch17.addConstraint([
    Sketcher.Constraint("Vertical", 0),
    Sketcher.Constraint("Horizontal", 1),
    Sketcher.Constraint("Vertical", 2),
    Sketcher.Constraint("Horizontal", 3),
    Sketcher.Constraint("DistanceY", 0, 2, 0, 1, 7.0),
    Sketcher.Constraint("DistanceX", 1, 1, 1, 2, 4.5),
    Sketcher.Constraint("DistanceX", -1, 1, 0, 2, 19.0),
    Sketcher.Constraint("DistanceY", -1, 1, 0, 2, 32.0),
])
pad17 = body41.newObject("PartDesign::Pad", "Pad016")
pad17.Profile = sketch17
pad17.Length = 16
body42 = doc.addObject("PartDesign::Body", "Body041")
body42.AllowCompound = True

# Sketch on XY plane
sketch18 = body42.newObject("Sketcher::SketchObject", "Sketch017")
sketch18.AttachmentSupport = (doc.getObject("XY_Plane041"), [""])
sketch18.MapMode = "FlatFace"
add_polygon(sketch18, [(2, 0), (2, -7), (6.5, -7), (6.5, 0)])  # lines 0-3
sketch18.addConstraint([
    Sketcher.Constraint("Vertical", 0),
    Sketcher.Constraint("Horizontal", 1),
    Sketcher.Constraint("Vertical", 2),
    Sketcher.Constraint("Horizontal", 3),
    Sketcher.Constraint("PointOnObject", 2, 2, -1),
    Sketcher.Constraint("DistanceY", 0, 2, 0, 1, 7.0),
    Sketcher.Constraint("DistanceX", 1, 1, 1, 2, 4.5),
    Sketcher.Constraint("DistanceX", -1, 1, 0, 2, 2.0),
])
pad18 = body42.newObject("PartDesign::Pad", "Pad017")
pad18.Profile = sketch18
pad18.Length = 16
doc.recompute()

boolean37 = body42.newObject("PartDesign::Boolean", "Boolean036")
boolean37.Type = "Fuse"
boolean37.addObjects([body39])
doc.recompute()

boolean38 = body42.newObject("PartDesign::Boolean", "Boolean037")
boolean38.Type = "Fuse"
boolean38.addObjects([body40])
doc.recompute()

boolean39 = body42.newObject("PartDesign::Boolean", "Boolean038")
boolean39.Type = "Fuse"
boolean39.addObjects([body41])
body43 = doc.addObject("PartDesign::Body", "Body042")
body43.AllowCompound = True
doc.recompute()

body42.Placement = App.Placement(Vector(0, 0, 5.5), App.Rotation(Vector(0, 0, 1), 0))
boolean40 = body43.newObject("PartDesign::Boolean", "Boolean039")
boolean40.Type = "Fuse"
boolean40.addObjects([body42])
body44 = doc.addObject("PartDesign::Body", "Body043")

# Sketch on XY plane
sketch19 = body44.newObject("Sketcher::SketchObject", "Sketch018")
sketch19.AttachmentSupport = (doc.getObject("XY_Plane043"), [""])
sketch19.MapMode = "FlatFace"
add_polygon(sketch19, [(-6, 32), (-6, 25), (0, 25), (0, 32)])  # lines 0-3
sketch19.addConstraint([
    Sketcher.Constraint("Vertical", 0),
    Sketcher.Constraint("Horizontal", 1),
    Sketcher.Constraint("Vertical", 2),
    Sketcher.Constraint("Horizontal", 3),
    Sketcher.Constraint("PointOnObject", 1, 2, -2),
    Sketcher.Constraint("DistanceX", 1, 1, 1, 2, 6.0),
    Sketcher.Constraint("DistanceY", 0, 2, 0, 1, 7.0),
    Sketcher.Constraint("DistanceY", -1, 1, 0, 2, 25.0),
])
pad19 = body44.newObject("PartDesign::Pad", "Pad018")
pad19.Profile = sketch19
pad19.Length = 20
body45 = doc.addObject("PartDesign::Body", "Body044")

# Sketch on XY plane
sketch20 = body45.newObject("Sketcher::SketchObject", "Sketch019")
sketch20.AttachmentSupport = (doc.getObject("XY_Plane044"), [""])
sketch20.MapMode = "FlatFace"
add_polygon(sketch20, [(24, 32), (24, 0), (30, 0), (30, 32)])  # lines 0-3
sketch20.addConstraint([
    Sketcher.Constraint("Vertical", 0),
    Sketcher.Constraint("Horizontal", 1),
    Sketcher.Constraint("Vertical", 2),
    Sketcher.Constraint("Horizontal", 3),
    Sketcher.Constraint("PointOnObject", 0, 2, -1),
    Sketcher.Constraint("DistanceX", 1, 1, 1, 2, 6.0),
    Sketcher.Constraint("DistanceY", 0, 2, 0, 1, 32.0),
    Sketcher.Constraint("DistanceX", -1, 1, 0, 2, 24.0),
])
pad20 = body45.newObject("PartDesign::Pad", "Pad019")
pad20.Profile = sketch20
pad20.Length = 30
body46 = doc.addObject("PartDesign::Body", "Body045")

# Sketch on XY plane
sketch21 = body46.newObject("Sketcher::SketchObject", "Sketch020")
sketch21.AttachmentSupport = (doc.getObject("XY_Plane045"), [""])
sketch21.MapMode = "FlatFace"
add_polygon(sketch21, [(0, 32), (0, 0), (24, 0), (24, 32)])  # lines 0-3
sketch21.addConstraint([
    Sketcher.Constraint("Vertical", 0),
    Sketcher.Constraint("Horizontal", 1),
    Sketcher.Constraint("Vertical", 2),
    Sketcher.Constraint("Horizontal", 3),
    Sketcher.Constraint("Coincident", 0, 2, -1, 1),
    Sketcher.Constraint("DistanceX", 1, 1, 1, 2, 24.0),
    Sketcher.Constraint("DistanceY", 0, 2, 0, 1, 32.0),
])
pad21 = body46.newObject("PartDesign::Pad", "Pad020")
pad21.Profile = sketch21
pad21.Length = 25
doc.recompute()

boolean41 = body46.newObject("PartDesign::Boolean", "Boolean040")
boolean41.Type = "Fuse"
boolean41.addObjects([body38])
doc.recompute()

boolean42 = body46.newObject("PartDesign::Boolean", "Boolean041")
boolean42.Type = "Fuse"
boolean42.addObjects([body43])
doc.recompute()

boolean43 = body46.newObject("PartDesign::Boolean", "Boolean042")
boolean43.Type = "Fuse"
boolean43.addObjects([body44])
doc.recompute()

boolean44 = body46.newObject("PartDesign::Boolean", "Boolean043")
boolean44.Type = "Fuse"
boolean44.addObjects([body45])
doc.recompute()

fillet = body46.newObject("PartDesign::Fillet", "Fillet")
fillet.Base = (boolean44, edges_at(boolean44, [(-6, 3.5, 0)]))
fillet.Radius = 4
doc.recompute()

fillet2 = body46.newObject("PartDesign::Fillet", "Fillet001")
fillet2.Base = (fillet, edges_at(fillet, [(14, 0, 0)]))
fillet2.Radius = 4
doc.recompute()

fillet3 = body46.newObject("PartDesign::Fillet", "Fillet002")
fillet3.Base = (fillet2, edges_at(fillet2, [(12, 32, 0)]))
fillet3.Radius = 4
doc.recompute()

fillet4 = body46.newObject("PartDesign::Fillet", "Fillet003")
fillet4.Base = (fillet3, edges_at(fillet3, [(-6, 26.5, 0)]))
fillet4.Radius = 4
doc.recompute()

boolean45 = body46.newObject("PartDesign::Boolean", "Boolean044")
boolean45.Type = "Cut"
boolean45.addObjects([body37])

doc.recompute()
